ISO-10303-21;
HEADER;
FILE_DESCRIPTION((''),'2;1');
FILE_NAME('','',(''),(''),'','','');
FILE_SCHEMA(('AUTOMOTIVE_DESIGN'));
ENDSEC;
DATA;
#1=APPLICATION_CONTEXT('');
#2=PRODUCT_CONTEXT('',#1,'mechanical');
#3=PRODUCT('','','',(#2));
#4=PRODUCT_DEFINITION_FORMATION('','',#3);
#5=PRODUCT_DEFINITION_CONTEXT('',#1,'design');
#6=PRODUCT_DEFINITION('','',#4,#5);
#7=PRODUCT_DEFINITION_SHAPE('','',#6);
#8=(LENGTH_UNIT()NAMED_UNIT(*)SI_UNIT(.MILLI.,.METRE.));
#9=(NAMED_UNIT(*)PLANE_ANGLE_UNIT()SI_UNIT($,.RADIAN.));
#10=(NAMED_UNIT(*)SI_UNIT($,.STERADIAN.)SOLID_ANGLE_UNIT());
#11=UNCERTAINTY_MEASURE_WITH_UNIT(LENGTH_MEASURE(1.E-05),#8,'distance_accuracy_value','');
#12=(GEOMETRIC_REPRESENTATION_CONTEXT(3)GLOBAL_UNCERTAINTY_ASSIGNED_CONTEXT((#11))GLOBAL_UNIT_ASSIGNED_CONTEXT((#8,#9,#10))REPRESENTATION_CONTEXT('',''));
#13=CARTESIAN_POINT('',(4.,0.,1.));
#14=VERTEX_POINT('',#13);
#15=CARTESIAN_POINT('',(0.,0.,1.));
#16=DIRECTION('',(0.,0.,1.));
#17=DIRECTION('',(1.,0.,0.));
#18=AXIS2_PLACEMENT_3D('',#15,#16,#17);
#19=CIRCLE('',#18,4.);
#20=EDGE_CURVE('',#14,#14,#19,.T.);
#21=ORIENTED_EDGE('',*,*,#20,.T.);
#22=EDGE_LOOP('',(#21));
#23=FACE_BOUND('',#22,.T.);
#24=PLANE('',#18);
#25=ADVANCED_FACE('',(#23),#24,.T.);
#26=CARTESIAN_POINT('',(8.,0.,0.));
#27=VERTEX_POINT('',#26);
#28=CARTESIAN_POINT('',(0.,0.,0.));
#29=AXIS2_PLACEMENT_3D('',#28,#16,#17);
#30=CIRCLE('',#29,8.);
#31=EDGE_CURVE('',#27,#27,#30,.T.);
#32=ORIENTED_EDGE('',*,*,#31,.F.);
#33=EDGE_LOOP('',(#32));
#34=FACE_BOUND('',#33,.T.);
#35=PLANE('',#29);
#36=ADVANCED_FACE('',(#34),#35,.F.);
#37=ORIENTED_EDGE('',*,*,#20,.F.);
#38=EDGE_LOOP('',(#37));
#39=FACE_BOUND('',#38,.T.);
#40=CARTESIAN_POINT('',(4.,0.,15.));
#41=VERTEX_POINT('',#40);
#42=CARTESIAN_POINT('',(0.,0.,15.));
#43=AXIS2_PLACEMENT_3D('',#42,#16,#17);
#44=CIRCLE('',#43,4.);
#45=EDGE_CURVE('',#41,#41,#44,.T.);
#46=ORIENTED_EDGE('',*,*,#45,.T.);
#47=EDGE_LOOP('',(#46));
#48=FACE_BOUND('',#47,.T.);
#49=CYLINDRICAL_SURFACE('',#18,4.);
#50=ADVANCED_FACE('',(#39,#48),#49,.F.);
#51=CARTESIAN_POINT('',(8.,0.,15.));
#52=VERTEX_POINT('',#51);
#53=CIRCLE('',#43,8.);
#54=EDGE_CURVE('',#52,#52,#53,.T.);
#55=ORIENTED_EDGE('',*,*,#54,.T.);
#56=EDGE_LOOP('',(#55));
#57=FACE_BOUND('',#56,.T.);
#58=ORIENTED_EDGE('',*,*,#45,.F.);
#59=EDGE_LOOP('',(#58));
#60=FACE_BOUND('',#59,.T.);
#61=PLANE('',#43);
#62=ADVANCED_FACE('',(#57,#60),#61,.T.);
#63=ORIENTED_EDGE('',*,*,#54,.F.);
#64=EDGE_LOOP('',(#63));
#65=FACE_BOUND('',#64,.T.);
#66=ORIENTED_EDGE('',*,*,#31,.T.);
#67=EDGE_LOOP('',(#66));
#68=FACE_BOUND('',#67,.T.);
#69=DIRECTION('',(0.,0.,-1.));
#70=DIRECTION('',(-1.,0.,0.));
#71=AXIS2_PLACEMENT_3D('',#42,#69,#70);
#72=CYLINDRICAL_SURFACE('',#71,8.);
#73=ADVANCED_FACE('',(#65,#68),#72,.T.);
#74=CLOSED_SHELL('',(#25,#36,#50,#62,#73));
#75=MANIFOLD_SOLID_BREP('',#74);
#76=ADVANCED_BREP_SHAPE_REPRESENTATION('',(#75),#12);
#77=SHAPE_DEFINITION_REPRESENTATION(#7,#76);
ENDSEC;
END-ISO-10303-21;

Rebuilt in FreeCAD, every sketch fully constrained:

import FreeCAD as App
import Part
import Sketcher
from FreeCAD import Vector

doc = App.newDocument("Part")
body = doc.addObject("PartDesign::Body", "Body")

# Sketch on XY plane
sketch1 = doc.addObject("Sketcher::SketchObject", "Sketch")
body.addObject(sketch1)
sketch1.AttachmentSupport = (doc.XY_Plane, [""])
sketch1.MapMode = "FlatFace"
sketch1.addGeometry(Part.Circle(Vector(0, 0, 0), Vector(0, 0, 1), 8), False)
sketch1.addConstraint(Sketcher.Constraint("Coincident", 0, 3, -1, 1))
sketch1.addConstraint(Sketcher.Constraint("Diameter", 0, 16.0))
pad1 = doc.addObject("PartDesign::Pad", "Pad")
body.addObject(pad1)
pad1.Profile = sketch1
pad1.Length = 15

# Sketch on XY plane
sketch2 = doc.addObject("Sketcher::SketchObject", "Sketch001")
body.addObject(sketch2)
sketch2.AttachmentSupport = (doc.XY_Plane, [""])
sketch2.MapMode = "FlatFace"
sketch2.AttachmentOffset = App.Placement(Vector(0, 0, 15), App.Rotation())
sketch2.addGeometry(Part.Circle(Vector(0, 0, 0), Vector(0, 0, 1), 4), False)
sketch2.addConstraint(Sketcher.Constraint("Coincident", 0, 3, -1, 1))
sketch2.addConstraint(Sketcher.Constraint("Diameter", 0, 8.0))
pocket1 = doc.addObject("PartDesign::Pocket", "Pocket")
body.addObject(pocket1)
pocket1.Profile = sketch2
pocket1.Length = 14

doc.recompute()
